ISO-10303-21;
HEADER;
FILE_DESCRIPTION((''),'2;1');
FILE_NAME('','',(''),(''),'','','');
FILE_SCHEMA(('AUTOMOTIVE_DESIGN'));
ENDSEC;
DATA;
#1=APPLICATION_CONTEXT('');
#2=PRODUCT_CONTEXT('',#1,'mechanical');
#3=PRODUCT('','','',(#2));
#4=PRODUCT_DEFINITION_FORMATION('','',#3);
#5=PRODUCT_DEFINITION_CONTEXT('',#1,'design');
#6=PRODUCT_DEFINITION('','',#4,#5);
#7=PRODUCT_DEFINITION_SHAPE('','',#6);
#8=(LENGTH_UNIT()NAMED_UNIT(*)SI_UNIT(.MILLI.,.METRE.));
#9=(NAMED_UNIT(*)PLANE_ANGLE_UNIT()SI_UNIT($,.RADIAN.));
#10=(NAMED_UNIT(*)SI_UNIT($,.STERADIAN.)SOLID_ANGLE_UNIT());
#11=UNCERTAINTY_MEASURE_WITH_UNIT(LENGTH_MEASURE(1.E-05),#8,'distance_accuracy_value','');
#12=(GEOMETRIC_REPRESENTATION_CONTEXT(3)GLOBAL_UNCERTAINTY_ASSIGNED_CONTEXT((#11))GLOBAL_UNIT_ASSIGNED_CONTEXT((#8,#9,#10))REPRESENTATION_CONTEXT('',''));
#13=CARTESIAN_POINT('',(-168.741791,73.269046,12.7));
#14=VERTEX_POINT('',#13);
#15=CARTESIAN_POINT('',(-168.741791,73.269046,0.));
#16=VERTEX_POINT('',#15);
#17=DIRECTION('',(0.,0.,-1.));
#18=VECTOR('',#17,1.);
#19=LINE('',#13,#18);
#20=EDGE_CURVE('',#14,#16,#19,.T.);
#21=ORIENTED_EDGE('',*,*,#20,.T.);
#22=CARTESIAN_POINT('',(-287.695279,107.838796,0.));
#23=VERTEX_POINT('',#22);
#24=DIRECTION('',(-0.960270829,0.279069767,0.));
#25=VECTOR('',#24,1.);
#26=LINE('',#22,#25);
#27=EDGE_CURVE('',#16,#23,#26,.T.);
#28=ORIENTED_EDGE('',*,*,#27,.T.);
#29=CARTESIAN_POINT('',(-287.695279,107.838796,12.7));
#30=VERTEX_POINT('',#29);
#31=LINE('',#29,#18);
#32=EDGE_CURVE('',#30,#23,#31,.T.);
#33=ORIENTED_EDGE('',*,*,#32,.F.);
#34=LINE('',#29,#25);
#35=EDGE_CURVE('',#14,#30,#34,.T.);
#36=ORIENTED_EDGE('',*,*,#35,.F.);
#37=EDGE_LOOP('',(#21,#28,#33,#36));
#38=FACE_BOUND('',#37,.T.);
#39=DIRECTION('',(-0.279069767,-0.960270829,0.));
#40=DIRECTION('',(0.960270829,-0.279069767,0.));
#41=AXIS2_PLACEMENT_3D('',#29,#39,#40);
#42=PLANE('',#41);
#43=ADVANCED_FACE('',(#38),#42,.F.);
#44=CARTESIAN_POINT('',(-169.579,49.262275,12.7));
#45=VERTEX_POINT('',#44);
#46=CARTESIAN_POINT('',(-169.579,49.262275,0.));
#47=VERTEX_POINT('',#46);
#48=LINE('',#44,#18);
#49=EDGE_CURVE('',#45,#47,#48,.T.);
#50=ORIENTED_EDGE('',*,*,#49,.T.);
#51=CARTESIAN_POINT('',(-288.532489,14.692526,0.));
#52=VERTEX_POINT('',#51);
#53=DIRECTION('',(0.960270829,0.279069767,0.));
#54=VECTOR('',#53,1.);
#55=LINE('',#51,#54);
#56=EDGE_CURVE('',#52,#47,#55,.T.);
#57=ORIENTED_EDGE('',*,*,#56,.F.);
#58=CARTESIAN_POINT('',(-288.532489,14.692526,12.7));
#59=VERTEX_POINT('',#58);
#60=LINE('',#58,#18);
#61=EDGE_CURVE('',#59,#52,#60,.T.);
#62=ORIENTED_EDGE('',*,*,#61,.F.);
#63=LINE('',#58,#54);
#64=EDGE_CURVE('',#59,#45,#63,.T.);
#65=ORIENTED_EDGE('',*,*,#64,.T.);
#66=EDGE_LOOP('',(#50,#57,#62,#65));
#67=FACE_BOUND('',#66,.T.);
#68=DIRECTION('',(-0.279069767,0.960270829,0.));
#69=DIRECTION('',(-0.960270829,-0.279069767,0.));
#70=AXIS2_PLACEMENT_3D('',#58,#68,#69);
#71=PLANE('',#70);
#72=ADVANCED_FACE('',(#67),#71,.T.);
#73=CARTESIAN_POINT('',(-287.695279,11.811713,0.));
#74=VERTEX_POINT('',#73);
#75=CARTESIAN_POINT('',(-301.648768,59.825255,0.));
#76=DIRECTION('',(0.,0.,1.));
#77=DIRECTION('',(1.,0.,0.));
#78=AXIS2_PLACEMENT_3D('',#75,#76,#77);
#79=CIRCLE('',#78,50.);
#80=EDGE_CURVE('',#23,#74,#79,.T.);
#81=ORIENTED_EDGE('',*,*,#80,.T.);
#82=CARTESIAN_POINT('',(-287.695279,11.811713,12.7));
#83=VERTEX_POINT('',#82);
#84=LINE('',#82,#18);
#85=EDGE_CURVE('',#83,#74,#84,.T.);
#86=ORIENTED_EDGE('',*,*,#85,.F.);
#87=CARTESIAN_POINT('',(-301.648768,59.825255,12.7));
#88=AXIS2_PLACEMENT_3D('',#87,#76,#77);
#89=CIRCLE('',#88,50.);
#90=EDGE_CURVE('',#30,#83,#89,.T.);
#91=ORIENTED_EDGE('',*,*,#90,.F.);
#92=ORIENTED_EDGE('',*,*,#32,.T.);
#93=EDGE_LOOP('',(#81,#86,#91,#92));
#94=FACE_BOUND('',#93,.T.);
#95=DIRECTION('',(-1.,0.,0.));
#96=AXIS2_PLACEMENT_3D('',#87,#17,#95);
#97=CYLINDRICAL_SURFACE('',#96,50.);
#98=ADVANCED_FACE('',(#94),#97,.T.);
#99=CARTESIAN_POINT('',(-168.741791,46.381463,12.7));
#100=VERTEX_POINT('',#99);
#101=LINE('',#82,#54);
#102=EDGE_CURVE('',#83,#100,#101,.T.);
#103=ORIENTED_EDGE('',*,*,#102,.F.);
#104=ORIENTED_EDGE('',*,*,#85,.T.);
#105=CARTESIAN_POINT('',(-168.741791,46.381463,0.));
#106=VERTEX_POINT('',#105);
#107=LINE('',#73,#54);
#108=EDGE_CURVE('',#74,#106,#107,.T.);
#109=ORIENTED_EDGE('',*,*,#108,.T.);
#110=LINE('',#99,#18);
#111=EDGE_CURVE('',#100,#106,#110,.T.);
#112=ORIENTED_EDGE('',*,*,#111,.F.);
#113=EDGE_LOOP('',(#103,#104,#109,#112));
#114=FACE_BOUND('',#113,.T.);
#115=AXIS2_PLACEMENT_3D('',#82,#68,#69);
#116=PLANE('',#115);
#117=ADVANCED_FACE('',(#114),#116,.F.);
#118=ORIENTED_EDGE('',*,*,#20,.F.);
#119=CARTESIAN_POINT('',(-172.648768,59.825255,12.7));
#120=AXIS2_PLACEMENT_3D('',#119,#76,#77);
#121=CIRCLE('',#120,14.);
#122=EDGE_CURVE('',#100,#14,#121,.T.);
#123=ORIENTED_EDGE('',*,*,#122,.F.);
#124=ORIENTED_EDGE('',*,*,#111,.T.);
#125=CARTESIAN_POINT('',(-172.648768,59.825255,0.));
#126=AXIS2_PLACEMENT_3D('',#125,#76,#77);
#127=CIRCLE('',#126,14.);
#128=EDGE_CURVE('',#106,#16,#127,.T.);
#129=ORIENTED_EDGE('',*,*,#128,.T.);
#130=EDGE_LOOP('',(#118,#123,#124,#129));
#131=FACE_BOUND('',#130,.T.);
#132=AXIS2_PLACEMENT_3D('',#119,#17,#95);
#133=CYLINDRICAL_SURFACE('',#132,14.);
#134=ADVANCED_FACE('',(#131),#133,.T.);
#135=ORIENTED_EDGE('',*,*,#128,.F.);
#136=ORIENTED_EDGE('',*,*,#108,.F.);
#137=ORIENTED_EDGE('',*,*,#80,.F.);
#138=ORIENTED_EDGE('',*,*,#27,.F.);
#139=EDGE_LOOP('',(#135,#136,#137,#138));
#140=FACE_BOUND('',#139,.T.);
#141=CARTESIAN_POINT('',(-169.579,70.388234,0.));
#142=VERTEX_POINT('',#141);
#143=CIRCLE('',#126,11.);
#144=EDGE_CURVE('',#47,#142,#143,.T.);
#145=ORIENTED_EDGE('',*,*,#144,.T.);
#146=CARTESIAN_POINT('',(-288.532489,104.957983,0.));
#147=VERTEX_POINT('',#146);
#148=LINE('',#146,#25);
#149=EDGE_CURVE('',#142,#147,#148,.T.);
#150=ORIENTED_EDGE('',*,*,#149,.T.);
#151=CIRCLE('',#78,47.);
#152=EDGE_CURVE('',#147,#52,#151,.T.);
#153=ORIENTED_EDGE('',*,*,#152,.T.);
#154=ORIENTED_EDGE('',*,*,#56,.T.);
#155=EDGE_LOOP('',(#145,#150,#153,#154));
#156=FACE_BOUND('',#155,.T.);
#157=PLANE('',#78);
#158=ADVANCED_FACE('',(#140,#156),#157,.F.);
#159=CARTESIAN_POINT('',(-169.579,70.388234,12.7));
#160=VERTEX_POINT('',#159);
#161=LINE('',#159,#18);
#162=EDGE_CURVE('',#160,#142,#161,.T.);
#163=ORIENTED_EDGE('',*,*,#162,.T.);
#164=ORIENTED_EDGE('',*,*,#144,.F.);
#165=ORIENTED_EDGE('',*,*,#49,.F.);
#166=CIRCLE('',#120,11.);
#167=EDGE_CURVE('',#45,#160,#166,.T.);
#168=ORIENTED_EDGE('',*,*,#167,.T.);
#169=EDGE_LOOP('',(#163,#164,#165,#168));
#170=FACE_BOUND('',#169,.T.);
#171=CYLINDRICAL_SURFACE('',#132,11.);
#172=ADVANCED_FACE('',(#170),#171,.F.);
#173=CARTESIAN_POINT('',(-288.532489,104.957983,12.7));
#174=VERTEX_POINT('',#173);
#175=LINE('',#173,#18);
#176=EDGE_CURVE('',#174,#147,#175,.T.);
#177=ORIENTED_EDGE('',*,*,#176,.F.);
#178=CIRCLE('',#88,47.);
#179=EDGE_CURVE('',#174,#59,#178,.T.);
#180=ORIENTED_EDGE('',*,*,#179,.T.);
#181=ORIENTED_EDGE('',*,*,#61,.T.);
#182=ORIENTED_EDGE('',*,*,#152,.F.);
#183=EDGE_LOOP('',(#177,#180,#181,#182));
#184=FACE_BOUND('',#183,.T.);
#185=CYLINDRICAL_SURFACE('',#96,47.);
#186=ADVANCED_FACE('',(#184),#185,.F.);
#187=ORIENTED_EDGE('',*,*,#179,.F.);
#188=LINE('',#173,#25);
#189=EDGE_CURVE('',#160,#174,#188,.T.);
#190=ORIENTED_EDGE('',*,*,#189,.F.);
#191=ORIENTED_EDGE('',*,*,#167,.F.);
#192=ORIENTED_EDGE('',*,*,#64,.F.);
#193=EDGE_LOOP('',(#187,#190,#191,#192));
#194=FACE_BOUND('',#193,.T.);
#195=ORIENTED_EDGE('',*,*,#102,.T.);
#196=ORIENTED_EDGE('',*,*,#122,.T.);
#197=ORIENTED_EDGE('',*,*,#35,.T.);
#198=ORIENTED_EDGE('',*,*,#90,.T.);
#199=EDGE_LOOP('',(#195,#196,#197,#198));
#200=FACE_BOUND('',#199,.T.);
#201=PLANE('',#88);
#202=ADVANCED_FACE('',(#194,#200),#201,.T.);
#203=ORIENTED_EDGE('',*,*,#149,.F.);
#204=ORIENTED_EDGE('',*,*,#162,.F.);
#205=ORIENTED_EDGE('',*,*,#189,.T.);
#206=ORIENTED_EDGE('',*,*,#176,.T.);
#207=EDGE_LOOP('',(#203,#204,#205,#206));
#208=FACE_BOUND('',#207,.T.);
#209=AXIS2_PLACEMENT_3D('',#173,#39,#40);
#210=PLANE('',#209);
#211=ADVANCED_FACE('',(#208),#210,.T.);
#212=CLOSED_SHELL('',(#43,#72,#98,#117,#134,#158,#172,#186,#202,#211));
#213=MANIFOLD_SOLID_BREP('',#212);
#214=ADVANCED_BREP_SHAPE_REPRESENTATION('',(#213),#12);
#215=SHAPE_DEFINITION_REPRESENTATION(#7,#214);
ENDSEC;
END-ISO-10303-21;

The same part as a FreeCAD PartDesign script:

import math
import FreeCAD as App
import Part
import Sketcher

doc = App.newDocument("Part")
body = doc.addObject("PartDesign::Body", "Body")

sketch1 = doc.addObject("Sketcher::SketchObject", "Sketch")
body.addObject(sketch1)
sketch1.AttachmentSupport = (doc.XY_Plane, [""])
sketch1.MapMode = "FlatFace"
sketch1.addGeometry([
    Part.LineSegment(App.Vector(-169, 73, 0), App.Vector(-288, 108, 0)),
    Part.ArcOfCircle(Part.Circle(App.Vector(-302, 60, 0), App.Vector(0, 0, 1), 50), math.radians(74), math.radians(286)),
    Part.LineSegment(App.Vector(-288, 12, 0), App.Vector(-169, 46, 0)),
    Part.ArcOfCircle(Part.Circle(App.Vector(-173, 60, 0), App.Vector(0, 0, 1), 14), math.radians(-74), math.radians(74)),
    Part.LineSegment(App.Vector(-289, 105, 0), App.Vector(-170, 70, 0)),
    Part.ArcOfCircle(Part.Circle(App.Vector(-173, 60, 0), App.Vector(0, 0, 1), 11), math.radians(-74), math.radians(74)),
    Part.LineSegment(App.Vector(-170, 49, 0), App.Vector(-289, 15, 0)),
    Part.ArcOfCircle(Part.Circle(App.Vector(-302, 60, 0), App.Vector(0, 0, 1), 47), math.radians(74), math.radians(286)),
], False)
sketch1.addConstraint([
    Sketcher.Constraint("Tangent", 0, 2, 1, 1),
    Sketcher.Constraint("Tangent", 1, 2, 2, 1),
    Sketcher.Constraint("Tangent", 2, 2, 3, 1),
    Sketcher.Constraint("Tangent", 3, 2, 0, 1),
    Sketcher.Constraint("Tangent", 4, 2, 5, 2),
    Sketcher.Constraint("Tangent", 5, 1, 6, 1),
    Sketcher.Constraint("Tangent", 6, 2, 7, 2),
    Sketcher.Constraint("Tangent", 7, 1, 4, 1),
    Sketcher.Constraint("Coincident", 5, 3, 3, 3),
    Sketcher.Constraint("Coincident", 7, 3, 1, 3),
    Sketcher.Constraint("Parallel", 0, 4),
    Sketcher.Constraint("Horizontal", 1, 3, 3, 3),
    Sketcher.Constraint("Radius", 1, 50.0),
    Sketcher.Constraint("Radius", 3, 14.0),
    Sketcher.Constraint("Radius", 5, 11.0),
    Sketcher.Constraint("DistanceX", 1, 3, 3, 3, 129.0),
    Sketcher.Constraint("DistanceX", 4, 2, -1, 1, 169.579),
    Sketcher.Constraint("DistanceY", -1, 1, 1, 3, 59.825255),
])
pad1 = doc.addObject("PartDesign::Pad", "Pad")
body.addObject(pad1)
pad1.Profile = sketch1
pad1.Length = 12.7

doc.recompute()
